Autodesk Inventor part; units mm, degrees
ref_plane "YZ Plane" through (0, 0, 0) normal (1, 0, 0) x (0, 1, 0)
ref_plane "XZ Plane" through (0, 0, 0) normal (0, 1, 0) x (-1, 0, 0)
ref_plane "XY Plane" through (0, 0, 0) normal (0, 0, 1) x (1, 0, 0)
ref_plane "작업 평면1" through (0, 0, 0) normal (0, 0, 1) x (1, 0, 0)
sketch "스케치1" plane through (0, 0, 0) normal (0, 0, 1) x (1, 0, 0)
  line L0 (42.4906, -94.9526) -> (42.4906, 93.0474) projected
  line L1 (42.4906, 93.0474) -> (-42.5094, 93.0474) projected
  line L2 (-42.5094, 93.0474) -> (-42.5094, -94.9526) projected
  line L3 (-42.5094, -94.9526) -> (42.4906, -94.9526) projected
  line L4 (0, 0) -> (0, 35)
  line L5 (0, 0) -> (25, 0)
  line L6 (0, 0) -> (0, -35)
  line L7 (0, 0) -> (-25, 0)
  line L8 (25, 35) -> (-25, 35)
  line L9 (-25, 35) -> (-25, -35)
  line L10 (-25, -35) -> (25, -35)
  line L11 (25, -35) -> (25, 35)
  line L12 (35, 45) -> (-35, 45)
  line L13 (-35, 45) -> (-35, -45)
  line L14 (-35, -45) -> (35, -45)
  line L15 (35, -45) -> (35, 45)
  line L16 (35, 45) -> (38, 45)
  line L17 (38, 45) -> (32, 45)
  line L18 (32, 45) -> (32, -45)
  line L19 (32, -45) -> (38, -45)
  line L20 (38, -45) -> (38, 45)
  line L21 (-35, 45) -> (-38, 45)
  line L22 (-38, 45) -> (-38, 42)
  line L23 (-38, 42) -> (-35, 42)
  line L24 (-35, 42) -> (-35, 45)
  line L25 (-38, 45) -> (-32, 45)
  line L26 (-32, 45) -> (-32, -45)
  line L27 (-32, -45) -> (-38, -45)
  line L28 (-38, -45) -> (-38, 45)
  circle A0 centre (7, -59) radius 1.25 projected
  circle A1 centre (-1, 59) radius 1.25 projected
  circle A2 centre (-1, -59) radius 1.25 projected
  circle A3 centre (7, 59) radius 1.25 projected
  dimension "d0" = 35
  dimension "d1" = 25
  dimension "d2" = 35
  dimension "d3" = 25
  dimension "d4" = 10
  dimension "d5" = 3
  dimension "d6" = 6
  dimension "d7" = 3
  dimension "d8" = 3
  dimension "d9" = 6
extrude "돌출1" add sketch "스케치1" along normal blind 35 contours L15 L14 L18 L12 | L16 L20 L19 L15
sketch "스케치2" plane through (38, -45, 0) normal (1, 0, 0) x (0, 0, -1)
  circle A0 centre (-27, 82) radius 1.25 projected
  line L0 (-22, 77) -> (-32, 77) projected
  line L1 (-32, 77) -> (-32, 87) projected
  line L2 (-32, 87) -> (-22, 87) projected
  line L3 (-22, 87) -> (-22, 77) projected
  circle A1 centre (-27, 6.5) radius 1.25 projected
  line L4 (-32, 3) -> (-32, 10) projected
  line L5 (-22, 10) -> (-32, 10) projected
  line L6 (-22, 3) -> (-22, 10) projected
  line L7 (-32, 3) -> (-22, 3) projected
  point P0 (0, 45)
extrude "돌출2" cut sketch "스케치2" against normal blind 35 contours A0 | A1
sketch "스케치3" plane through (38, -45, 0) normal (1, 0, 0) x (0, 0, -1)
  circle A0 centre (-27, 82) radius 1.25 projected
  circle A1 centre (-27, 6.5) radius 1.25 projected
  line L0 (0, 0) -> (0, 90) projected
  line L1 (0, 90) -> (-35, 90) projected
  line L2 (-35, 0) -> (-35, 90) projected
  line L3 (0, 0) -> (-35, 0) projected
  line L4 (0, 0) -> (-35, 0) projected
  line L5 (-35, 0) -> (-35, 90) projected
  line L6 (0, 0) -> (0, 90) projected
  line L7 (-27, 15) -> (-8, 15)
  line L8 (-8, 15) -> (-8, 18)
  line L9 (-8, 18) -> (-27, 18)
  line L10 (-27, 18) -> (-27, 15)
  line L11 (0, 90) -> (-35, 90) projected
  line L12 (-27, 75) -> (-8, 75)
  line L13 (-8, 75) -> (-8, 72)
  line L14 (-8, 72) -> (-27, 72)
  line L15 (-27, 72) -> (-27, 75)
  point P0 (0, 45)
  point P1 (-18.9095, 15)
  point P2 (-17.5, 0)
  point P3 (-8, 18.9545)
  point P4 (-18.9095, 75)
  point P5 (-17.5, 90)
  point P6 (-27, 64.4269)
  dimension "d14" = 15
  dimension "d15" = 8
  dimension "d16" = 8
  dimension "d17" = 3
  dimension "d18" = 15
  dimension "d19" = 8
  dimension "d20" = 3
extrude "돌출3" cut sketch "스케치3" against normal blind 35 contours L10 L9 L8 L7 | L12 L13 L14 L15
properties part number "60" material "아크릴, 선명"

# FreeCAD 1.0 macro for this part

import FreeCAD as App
import Part
import Sketcher
from FreeCAD import Vector


def add_polygon(sketch, points):
    """Adds a closed chain of lines whose ends are joined by coincident constraints."""
    first, n = sketch.GeometryCount, len(points)
    for a, b in zip(points, points[1:] + points[:1]):
        sketch.addGeometry(Part.LineSegment(App.Vector(*a, 0), App.Vector(*b, 0)), False)
    for i in range(n):
        sketch.addConstraint(Sketcher.Constraint("Coincident", first + i, 2, first + (i + 1) % n, 1))

doc = App.newDocument("Part")
body = doc.addObject("PartDesign::Body", "Body")

sketch1 = body.newObject("Sketcher::SketchObject", "Sketch")
sketch1.AttachmentSupport = (doc.getObject("XY_Plane"), [""])
sketch1.MapMode = "FlatFace"
add_polygon(sketch1, [(32, -45), (38, -45), (38, 45), (32, 45)])
sketch1.addConstraint(Sketcher.Constraint("Horizontal", 0))
sketch1.addConstraint(Sketcher.Constraint("Vertical", 1))
sketch1.addConstraint(Sketcher.Constraint("Horizontal", 2))
sketch1.addConstraint(Sketcher.Constraint("Vertical", 3))
sketch1.addConstraint(Sketcher.Constraint("DistanceX", 0, 1, 0, 2, 6.0))
sketch1.addConstraint(Sketcher.Constraint("DistanceY", 1, 1, 1, 2, 90.0))
sketch1.addConstraint(Sketcher.Constraint("DistanceX", -1, 1, 0, 2, 38.0))
sketch1.addConstraint(Sketcher.Constraint("DistanceY", 0, 2, -1, 1, 45.0))
pad1 = body.newObject("PartDesign::Pad", "Pad")
pad1.Profile = sketch1
pad1.Length = 35

sketch2 = body.newObject("Sketcher::SketchObject", "Sketch001")
sketch2.AttachmentSupport = (doc.getObject("YZ_Plane"), [""])
sketch2.MapMode = "FlatFace"
sketch2.AttachmentOffset = App.Placement(Vector(0, 0, 38), App.Rotation())
sketch2.addGeometry(Part.Circle(Vector(37, 27, 0), Vector(0, 0, 1), 1.2), False)
sketch2.addGeometry(Part.Circle(Vector(-38.5, 27, 0), Vector(0, 0, 1), 1.2), False)
sketch2.addConstraint(Sketcher.Constraint("Equal", 0, 1))
sketch2.addConstraint(Sketcher.Constraint("Horizontal", 0, 3, 1, 3))
sketch2.addConstraint(Sketcher.Constraint("Diameter", 0, 2.5))
sketch2.addConstraint(Sketcher.Constraint("DistanceX", -1, 1, 0, 3, 37.0))
sketch2.addConstraint(Sketcher.Constraint("DistanceY", -1, 1, 0, 3, 27.0))
sketch2.addConstraint(Sketcher.Constraint("DistanceX", 1, 3, -1, 1, 38.5))
pocket1 = body.newObject("PartDesign::Pocket", "Pocket")
pocket1.Profile = sketch2
pocket1.Length = 35

sketch3 = body.newObject("Sketcher::SketchObject", "Sketch002")
sketch3.AttachmentSupport = (doc.getObject("YZ_Plane"), [""])
sketch3.MapMode = "FlatFace"
sketch3.AttachmentOffset = App.Placement(Vector(0, 0, 38), App.Rotation())
add_polygon(sketch3, [(-27, 27), (-30, 27), (-30, 8), (-27, 8)])
add_polygon(sketch3, [(30, 8), (30, 27), (27, 27), (27, 8)])
sketch3.addConstraint(Sketcher.Constraint("Horizontal", 0))
sketch3.addConstraint(Sketcher.Constraint("Vertical", 1))
sketch3.addConstraint(Sketcher.Constraint("Horizontal", 2))
sketch3.addConstraint(Sketcher.Constraint("Vertical", 3))
sketch3.addConstraint(Sketcher.Constraint("Vertical", 4))
sketch3.addConstraint(Sketcher.Constraint("Horizontal", 5))
sketch3.addConstraint(Sketcher.Constraint("Vertical", 6))
sketch3.addConstraint(Sketcher.Constraint("Horizontal", 7))
sketch3.addConstraint(Sketcher.Constraint("Symmetric", 0, 2, 4, 2, -2))
sketch3.addConstraint(Sketcher.Constraint("Symmetric", 2, 2, 6, 2, -2))
sketch3.addConstraint(Sketcher.Constraint("DistanceX", 0, 2, 0, 1, 3.0))
sketch3.addConstraint(Sketcher.Constraint("DistanceY", -1, 1, 1, 2, 8.0))
sketch3.addConstraint(Sketcher.Constraint("DistanceY", 1, 2, 1, 1, 19.0))
sketch3.addConstraint(Sketcher.Constraint("DistanceX", 0, 2, -1, 1, 30.0))
pocket2 = body.newObject("PartDesign::Pocket", "Pocket001")
pocket2.Profile = sketch3
pocket2.Length = 35

doc.recompute()
